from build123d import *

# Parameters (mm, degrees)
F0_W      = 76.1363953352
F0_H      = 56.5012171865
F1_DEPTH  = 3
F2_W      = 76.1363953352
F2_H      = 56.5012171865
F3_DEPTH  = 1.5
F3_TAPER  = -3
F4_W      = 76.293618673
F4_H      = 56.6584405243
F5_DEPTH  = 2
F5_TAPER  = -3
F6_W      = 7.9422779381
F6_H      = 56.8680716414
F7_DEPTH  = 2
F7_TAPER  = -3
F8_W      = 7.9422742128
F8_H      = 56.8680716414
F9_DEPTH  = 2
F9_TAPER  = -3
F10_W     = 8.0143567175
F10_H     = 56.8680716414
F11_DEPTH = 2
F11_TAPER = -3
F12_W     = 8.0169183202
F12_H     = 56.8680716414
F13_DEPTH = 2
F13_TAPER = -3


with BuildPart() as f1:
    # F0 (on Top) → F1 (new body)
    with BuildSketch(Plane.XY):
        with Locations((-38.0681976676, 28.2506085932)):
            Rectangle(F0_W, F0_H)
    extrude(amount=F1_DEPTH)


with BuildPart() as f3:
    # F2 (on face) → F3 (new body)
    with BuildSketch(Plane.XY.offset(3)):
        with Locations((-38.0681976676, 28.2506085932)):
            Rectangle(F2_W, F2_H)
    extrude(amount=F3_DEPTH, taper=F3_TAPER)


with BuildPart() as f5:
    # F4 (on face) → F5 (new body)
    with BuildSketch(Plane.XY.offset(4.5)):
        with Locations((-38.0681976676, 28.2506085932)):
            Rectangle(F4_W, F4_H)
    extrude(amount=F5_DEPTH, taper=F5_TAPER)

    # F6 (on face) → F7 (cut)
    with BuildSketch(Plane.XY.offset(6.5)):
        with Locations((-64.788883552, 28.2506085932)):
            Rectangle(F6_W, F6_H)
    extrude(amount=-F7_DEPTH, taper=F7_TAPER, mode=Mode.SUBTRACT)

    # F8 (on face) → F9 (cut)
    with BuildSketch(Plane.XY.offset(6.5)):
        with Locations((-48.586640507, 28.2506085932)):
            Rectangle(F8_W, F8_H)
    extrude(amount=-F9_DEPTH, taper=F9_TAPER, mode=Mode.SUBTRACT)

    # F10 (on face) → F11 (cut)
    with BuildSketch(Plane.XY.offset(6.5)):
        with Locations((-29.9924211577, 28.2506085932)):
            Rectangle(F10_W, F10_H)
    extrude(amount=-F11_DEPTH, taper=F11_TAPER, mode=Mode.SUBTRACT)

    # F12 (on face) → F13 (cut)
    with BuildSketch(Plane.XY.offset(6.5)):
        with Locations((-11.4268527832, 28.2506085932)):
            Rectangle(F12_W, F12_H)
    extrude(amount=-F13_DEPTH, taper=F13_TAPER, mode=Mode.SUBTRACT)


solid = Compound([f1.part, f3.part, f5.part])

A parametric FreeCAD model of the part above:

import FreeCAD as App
import Part
import Sketcher

V = App.Vector
Q = App.Units.Quantity

doc = App.newDocument("Part")
body = doc.addObject("PartDesign::Body", "Body")

# Sketch on XY plane
sketch1 = doc.addObject("Sketcher::SketchObject", "Sketch")
body.addObject(sketch1)
sketch1.AttachmentSupport = (doc.XY_Plane, [""])
sketch1.MapMode = "FlatFace"
sketch1.addGeometry(Part.LineSegment(V(-76, 57, 0), V(-76, 0, 0)), False)
sketch1.addGeometry(Part.LineSegment(V(-76, 0, 0), V(0, 0, 0)), False)
sketch1.addGeometry(Part.LineSegment(V(0, 0, 0), V(0, 57, 0)), False)
sketch1.addGeometry(Part.LineSegment(V(0, 57, 0), V(-76, 57, 0)), False)
sketch1.addConstraint(Sketcher.Constraint("Coincident", 0, 2, 1, 1))
sketch1.addConstraint(Sketcher.Constraint("Coincident", 1, 2, 2, 1))
sketch1.addConstraint(Sketcher.Constraint("Coincident", 2, 2, 3, 1))
sketch1.addConstraint(Sketcher.Constraint("Coincident", 3, 2, 0, 1))
sketch1.addConstraint(Sketcher.Constraint("Vertical", 0))
sketch1.addConstraint(Sketcher.Constraint("Horizontal", 1))
sketch1.addConstraint(Sketcher.Constraint("Vertical", 2))
sketch1.addConstraint(Sketcher.Constraint("Horizontal", 3))
sketch1.addConstraint(Sketcher.Constraint("Coincident", 1, 2, -1, 1))
sketch1.addConstraint(Sketcher.Constraint("DistanceX", 1, 1, 1, 2, Q("76.136395 mm")))
sketch1.addConstraint(Sketcher.Constraint("DistanceY", 0, 2, 0, 1, Q("56.501217 mm")))
pad1 = doc.addObject("PartDesign::Pad", "Pad")
body.addObject(pad1)
pad1.Profile = sketch1
pad1.Length = 3
body2 = doc.addObject("PartDesign::Body", "Body001")

# Sketch on XY plane
sketch2 = doc.addObject("Sketcher::SketchObject", "Sketch001")
body2.addObject(sketch2)
sketch2.AttachmentSupport = (doc.getObject("XY_Plane001"), [""])
sketch2.MapMode = "FlatFace"
sketch2.AttachmentOffset = App.Placement(V(0, 0, 3), App.Rotation())
sketch2.addGeometry(Part.LineSegment(V(-76, 57, 0), V(-76, 0, 0)), False)
sketch2.addGeometry(Part.LineSegment(V(-76, 0, 0), V(0, 0, 0)), False)
sketch2.addGeometry(Part.LineSegment(V(0, 0, 0), V(0, 57, 0)), False)
sketch2.addGeometry(Part.LineSegment(V(0, 57, 0), V(-76, 57, 0)), False)
sketch2.addConstraint(Sketcher.Constraint("Coincident", 0, 2, 1, 1))
sketch2.addConstraint(Sketcher.Constraint("Coincident", 1, 2, 2, 1))
sketch2.addConstraint(Sketcher.Constraint("Coincident", 2, 2, 3, 1))
sketch2.addConstraint(Sketcher.Constraint("Coincident", 3, 2, 0, 1))
sketch2.addConstraint(Sketcher.Constraint("Vertical", 0))
sketch2.addConstraint(Sketcher.Constraint("Horizontal", 1))
sketch2.addConstraint(Sketcher.Constraint("Vertical", 2))
sketch2.addConstraint(Sketcher.Constraint("Horizontal", 3))
sketch2.addConstraint(Sketcher.Constraint("Coincident", 1, 2, -1, 1))
sketch2.addConstraint(Sketcher.Constraint("DistanceX", 1, 1, 1, 2, Q("76.136395 mm")))
sketch2.addConstraint(Sketcher.Constraint("DistanceY", 0, 2, 0, 1, Q("56.501217 mm")))
pad2 = doc.addObject("PartDesign::Pad", "Pad001")
body2.addObject(pad2)
pad2.Profile = sketch2
pad2.Length = 1.5
pad2.TaperAngle = 3
body3 = doc.addObject("PartDesign::Body", "Body002")
body3.AllowCompound = True

# Sketch on XY plane
sketch3 = doc.addObject("Sketcher::SketchObject", "Sketch002")
body3.addObject(sketch3)
sketch3.AttachmentSupport = (doc.getObject("XY_Plane002"), [""])
sketch3.MapMode = "FlatFace"
sketch3.AttachmentOffset = App.Placement(V(0, 0, 4.5), App.Rotation())
sketch3.addGeometry(Part.LineSegment(V(-76, 57, 0), V(-76, 0, 0)), False)
sketch3.addGeometry(Part.LineSegment(V(-76, 0, 0), V(0, 0, 0)), False)
sketch3.addGeometry(Part.LineSegment(V(0, 0, 0), V(0, 57, 0)), False)
sketch3.addGeometry(Part.LineSegment(V(0, 57, 0), V(-76, 57, 0)), False)
sketch3.addConstraint(Sketcher.Constraint("Coincident", 0, 2, 1, 1))
sketch3.addConstraint(Sketcher.Constraint("Coincident", 1, 2, 2, 1))
sketch3.addConstraint(Sketcher.Constraint("Coincident", 2, 2, 3, 1))
sketch3.addConstraint(Sketcher.Constraint("Coincident", 3, 2, 0, 1))
sketch3.addConstraint(Sketcher.Constraint("Vertical", 0))
sketch3.addConstraint(Sketcher.Constraint("Horizontal", 1))
sketch3.addConstraint(Sketcher.Constraint("Vertical", 2))
sketch3.addConstraint(Sketcher.Constraint("Horizontal", 3))
sketch3.addConstraint(Sketcher.Constraint("DistanceX", 1, 1, 1, 2, Q("76.293619 mm")))
sketch3.addConstraint(Sketcher.Constraint("DistanceY", 0, 2, 0, 1, Q("56.658441 mm")))
sketch3.addConstraint(Sketcher.Constraint("DistanceY", 0, 2, -1, 1, Q("0.078612 mm")))
sketch3.addConstraint(Sketcher.Constraint("DistanceX", -1, 1, 1, 2, Q("0.078612 mm")))
pad3 = doc.addObject("PartDesign::Pad", "Pad002")
body3.addObject(pad3)
pad3.Profile = sketch3
pad3.Length = 2
pad3.TaperAngle = 3

# Sketch on XY plane
sketch4 = doc.addObject("Sketcher::SketchObject", "Sketch003")
body3.addObject(sketch4)
sketch4.AttachmentSupport = (doc.getObject("XY_Plane002"), [""])
sketch4.MapMode = "FlatFace"
sketch4.AttachmentOffset = App.Placement(V(0, 0, 6.5), App.Rotation())
sketch4.addGeometry(Part.LineSegment(V(-69, 57, 0), V(-69, 0, 0)), False)
sketch4.addGeometry(Part.LineSegment(V(-69, 0, 0), V(-61, 0, 0)), False)
sketch4.addGeometry(Part.LineSegment(V(-61, 0, 0), V(-61, 57, 0)), False)
sketch4.addGeometry(Part.LineSegment(V(-61, 57, 0), V(-69, 57, 0)), False)
sketch4.addConstraint(Sketcher.Constraint("Coincident", 0, 2, 1, 1))
sketch4.addConstraint(Sketcher.Constraint("Coincident", 1, 2, 2, 1))
sketch4.addConstraint(Sketcher.Constraint("Coincident", 2, 2, 3, 1))
sketch4.addConstraint(Sketcher.Constraint("Coincident", 3, 2, 0, 1))
sketch4.addConstraint(Sketcher.Constraint("Vertical", 0))
sketch4.addConstraint(Sketcher.Constraint("Horizontal", 1))
sketch4.addConstraint(Sketcher.Constraint("Vertical", 2))
sketch4.addConstraint(Sketcher.Constraint("Horizontal", 3))
sketch4.addConstraint(Sketcher.Constraint("DistanceY", 0, 2, 0, 1, Q("56.868072 mm")))
sketch4.addConstraint(Sketcher.Constraint("DistanceX", 1, 1, 1, 2, Q("7.942278 mm")))
sketch4.addConstraint(Sketcher.Constraint("DistanceX", 0, 2, -1, 1, Q("68.760023 mm")))
sketch4.addConstraint(Sketcher.Constraint("DistanceY", 0, 2, -1, 1, Q("0.183427 mm")))
pocket1 = doc.addObject("PartDesign::Pocket", "Pocket")
body3.addObject(pocket1)
pocket1.Profile = sketch4
pocket1.Length = 2
pocket1.TaperAngle = 3

# Sketch on XY plane
sketch5 = doc.addObject("Sketcher::SketchObject", "Sketch004")
body3.addObject(sketch5)
sketch5.AttachmentSupport = (doc.getObject("XY_Plane002"), [""])
sketch5.MapMode = "FlatFace"
sketch5.AttachmentOffset = App.Placement(V(0, 0, 6.5), App.Rotation())
sketch5.addGeometry(Part.LineSegment(V(-53, 57, 0), V(-53, 0, 0)), False)
sketch5.addGeometry(Part.LineSegment(V(-53, 0, 0), V(-45, 0, 0)), False)
sketch5.addGeometry(Part.LineSegment(V(-45, 0, 0), V(-45, 57, 0)), False)
sketch5.addGeometry(Part.LineSegment(V(-45, 57, 0), V(-53, 57, 0)), False)
sketch5.addConstraint(Sketcher.Constraint("Coincident", 0, 2, 1, 1))
sketch5.addConstraint(Sketcher.Constraint("Coincident", 1, 2, 2, 1))
sketch5.addConstraint(Sketcher.Constraint("Coincident", 2, 2, 3, 1))
sketch5.addConstraint(Sketcher.Constraint("Coincident", 3, 2, 0, 1))
sketch5.addConstraint(Sketcher.Constraint("Vertical", 0))
sketch5.addConstraint(Sketcher.Constraint("Horizontal", 1))
sketch5.addConstraint(Sketcher.Constraint("Vertical", 2))
sketch5.addConstraint(Sketcher.Constraint("Horizontal", 3))
sketch5.addConstraint(Sketcher.Constraint("DistanceY", 0, 2, 0, 1, Q("56.868072 mm")))
sketch5.addConstraint(Sketcher.Constraint("DistanceX", 1, 1, 1, 2, Q("7.942274 mm")))
sketch5.addConstraint(Sketcher.Constraint("DistanceX", 0, 2, -1, 1, Q("52.557778 mm")))
sketch5.addConstraint(Sketcher.Constraint("DistanceY", 0, 2, -1, 1, Q("0.183427 mm")))
pocket2 = doc.addObject("PartDesign::Pocket", "Pocket001")
body3.addObject(pocket2)
pocket2.Profile = sketch5
pocket2.Length = 2
pocket2.TaperAngle = 3

# Sketch on XY plane
sketch6 = doc.addObject("Sketcher::SketchObject", "Sketch005")
body3.addObject(sketch6)
sketch6.AttachmentSupport = (doc.getObject("XY_Plane002"), [""])
sketch6.MapMode = "FlatFace"
sketch6.AttachmentOffset = App.Placement(V(0, 0, 6.5), App.Rotation())
sketch6.addGeometry(Part.LineSegment(V(-34, 57, 0), V(-34, 0, 0)), False)
sketch6.addGeometry(Part.LineSegment(V(-34, 0, 0), V(-26, 0, 0)), False)
sketch6.addGeometry(Part.LineSegment(V(-26, 0, 0), V(-26, 57, 0)), False)
sketch6.addGeometry(Part.LineSegment(V(-26, 57, 0), V(-34, 57, 0)), False)
sketch6.addConstraint(Sketcher.Constraint("Coincident", 0, 2, 1, 1))
sketch6.addConstraint(Sketcher.Constraint("Coincident", 1, 2, 2, 1))
sketch6.addConstraint(Sketcher.Constraint("Coincident", 2, 2, 3, 1))
sketch6.addConstraint(Sketcher.Constraint("Coincident", 3, 2, 0, 1))
sketch6.addConstraint(Sketcher.Constraint("Vertical", 0))
sketch6.addConstraint(Sketcher.Constraint("Horizontal", 1))
sketch6.addConstraint(Sketcher.Constraint("Vertical", 2))
sketch6.addConstraint(Sketcher.Constraint("Horizontal", 3))
sketch6.addConstraint(Sketcher.Constraint("DistanceY", 0, 2, 0, 1, Q("56.868072 mm")))
sketch6.addConstraint(Sketcher.Constraint("DistanceX", 0, 2, -1, 1, Q("33.9996 mm")))
sketch6.addConstraint(Sketcher.Constraint("DistanceX", 1, 1, 1, 2, Q("8.014357 mm")))
sketch6.addConstraint(Sketcher.Constraint("DistanceY", 0, 2, -1, 1, Q("0.183427 mm")))
pocket3 = doc.addObject("PartDesign::Pocket", "Pocket002")
body3.addObject(pocket3)
pocket3.Profile = sketch6
pocket3.Length = 2
pocket3.TaperAngle = 3

# Sketch on XY plane
sketch7 = doc.addObject("Sketcher::SketchObject", "Sketch006")
body3.addObject(sketch7)
sketch7.AttachmentSupport = (doc.getObject("XY_Plane002"), [""])
sketch7.MapMode = "FlatFace"
sketch7.AttachmentOffset = App.Placement(V(0, 0, 6.5), App.Rotation())
sketch7.addGeometry(Part.LineSegment(V(-15, 57, 0), V(-15, 0, 0)), False)
sketch7.addGeometry(Part.LineSegment(V(-15, 0, 0), V(-7, 0, 0)), False)
sketch7.addGeometry(Part.LineSegment(V(-7, 0, 0), V(-7, 57, 0)), False)
sketch7.addGeometry(Part.LineSegment(V(-7, 57, 0), V(-15, 57, 0)), False)
sketch7.addConstraint(Sketcher.Constraint("Coincident", 0, 2, 1, 1))
sketch7.addConstraint(Sketcher.Constraint("Coincident", 1, 2, 2, 1))
sketch7.addConstraint(Sketcher.Constraint("Coincident", 2, 2, 3, 1))
sketch7.addConstraint(Sketcher.Constraint("Coincident", 3, 2, 0, 1))
sketch7.addConstraint(Sketcher.Constraint("Vertical", 0))
sketch7.addConstraint(Sketcher.Constraint("Horizontal", 1))
sketch7.addConstraint(Sketcher.Constraint("Vertical", 2))
sketch7.addConstraint(Sketcher.Constraint("Horizontal", 3))
sketch7.addConstraint(Sketcher.Constraint("DistanceX", 1, 1, 1, 2, Q("8.016918 mm")))
sketch7.addConstraint(Sketcher.Constraint("DistanceY", 0, 2, 0, 1, Q("56.868072 mm")))
sketch7.addConstraint(Sketcher.Constraint("DistanceX", 0, 2, -1, 1, Q("15.435312 mm")))
sketch7.addConstraint(Sketcher.Constraint("DistanceY", 0, 2, -1, 1, Q("0.183427 mm")))
pocket4 = doc.addObject("PartDesign::Pocket", "Pocket003")
body3.addObject(pocket4)
pocket4.Profile = sketch7
pocket4.Length = 2
pocket4.TaperAngle = 3

doc.recompute()
